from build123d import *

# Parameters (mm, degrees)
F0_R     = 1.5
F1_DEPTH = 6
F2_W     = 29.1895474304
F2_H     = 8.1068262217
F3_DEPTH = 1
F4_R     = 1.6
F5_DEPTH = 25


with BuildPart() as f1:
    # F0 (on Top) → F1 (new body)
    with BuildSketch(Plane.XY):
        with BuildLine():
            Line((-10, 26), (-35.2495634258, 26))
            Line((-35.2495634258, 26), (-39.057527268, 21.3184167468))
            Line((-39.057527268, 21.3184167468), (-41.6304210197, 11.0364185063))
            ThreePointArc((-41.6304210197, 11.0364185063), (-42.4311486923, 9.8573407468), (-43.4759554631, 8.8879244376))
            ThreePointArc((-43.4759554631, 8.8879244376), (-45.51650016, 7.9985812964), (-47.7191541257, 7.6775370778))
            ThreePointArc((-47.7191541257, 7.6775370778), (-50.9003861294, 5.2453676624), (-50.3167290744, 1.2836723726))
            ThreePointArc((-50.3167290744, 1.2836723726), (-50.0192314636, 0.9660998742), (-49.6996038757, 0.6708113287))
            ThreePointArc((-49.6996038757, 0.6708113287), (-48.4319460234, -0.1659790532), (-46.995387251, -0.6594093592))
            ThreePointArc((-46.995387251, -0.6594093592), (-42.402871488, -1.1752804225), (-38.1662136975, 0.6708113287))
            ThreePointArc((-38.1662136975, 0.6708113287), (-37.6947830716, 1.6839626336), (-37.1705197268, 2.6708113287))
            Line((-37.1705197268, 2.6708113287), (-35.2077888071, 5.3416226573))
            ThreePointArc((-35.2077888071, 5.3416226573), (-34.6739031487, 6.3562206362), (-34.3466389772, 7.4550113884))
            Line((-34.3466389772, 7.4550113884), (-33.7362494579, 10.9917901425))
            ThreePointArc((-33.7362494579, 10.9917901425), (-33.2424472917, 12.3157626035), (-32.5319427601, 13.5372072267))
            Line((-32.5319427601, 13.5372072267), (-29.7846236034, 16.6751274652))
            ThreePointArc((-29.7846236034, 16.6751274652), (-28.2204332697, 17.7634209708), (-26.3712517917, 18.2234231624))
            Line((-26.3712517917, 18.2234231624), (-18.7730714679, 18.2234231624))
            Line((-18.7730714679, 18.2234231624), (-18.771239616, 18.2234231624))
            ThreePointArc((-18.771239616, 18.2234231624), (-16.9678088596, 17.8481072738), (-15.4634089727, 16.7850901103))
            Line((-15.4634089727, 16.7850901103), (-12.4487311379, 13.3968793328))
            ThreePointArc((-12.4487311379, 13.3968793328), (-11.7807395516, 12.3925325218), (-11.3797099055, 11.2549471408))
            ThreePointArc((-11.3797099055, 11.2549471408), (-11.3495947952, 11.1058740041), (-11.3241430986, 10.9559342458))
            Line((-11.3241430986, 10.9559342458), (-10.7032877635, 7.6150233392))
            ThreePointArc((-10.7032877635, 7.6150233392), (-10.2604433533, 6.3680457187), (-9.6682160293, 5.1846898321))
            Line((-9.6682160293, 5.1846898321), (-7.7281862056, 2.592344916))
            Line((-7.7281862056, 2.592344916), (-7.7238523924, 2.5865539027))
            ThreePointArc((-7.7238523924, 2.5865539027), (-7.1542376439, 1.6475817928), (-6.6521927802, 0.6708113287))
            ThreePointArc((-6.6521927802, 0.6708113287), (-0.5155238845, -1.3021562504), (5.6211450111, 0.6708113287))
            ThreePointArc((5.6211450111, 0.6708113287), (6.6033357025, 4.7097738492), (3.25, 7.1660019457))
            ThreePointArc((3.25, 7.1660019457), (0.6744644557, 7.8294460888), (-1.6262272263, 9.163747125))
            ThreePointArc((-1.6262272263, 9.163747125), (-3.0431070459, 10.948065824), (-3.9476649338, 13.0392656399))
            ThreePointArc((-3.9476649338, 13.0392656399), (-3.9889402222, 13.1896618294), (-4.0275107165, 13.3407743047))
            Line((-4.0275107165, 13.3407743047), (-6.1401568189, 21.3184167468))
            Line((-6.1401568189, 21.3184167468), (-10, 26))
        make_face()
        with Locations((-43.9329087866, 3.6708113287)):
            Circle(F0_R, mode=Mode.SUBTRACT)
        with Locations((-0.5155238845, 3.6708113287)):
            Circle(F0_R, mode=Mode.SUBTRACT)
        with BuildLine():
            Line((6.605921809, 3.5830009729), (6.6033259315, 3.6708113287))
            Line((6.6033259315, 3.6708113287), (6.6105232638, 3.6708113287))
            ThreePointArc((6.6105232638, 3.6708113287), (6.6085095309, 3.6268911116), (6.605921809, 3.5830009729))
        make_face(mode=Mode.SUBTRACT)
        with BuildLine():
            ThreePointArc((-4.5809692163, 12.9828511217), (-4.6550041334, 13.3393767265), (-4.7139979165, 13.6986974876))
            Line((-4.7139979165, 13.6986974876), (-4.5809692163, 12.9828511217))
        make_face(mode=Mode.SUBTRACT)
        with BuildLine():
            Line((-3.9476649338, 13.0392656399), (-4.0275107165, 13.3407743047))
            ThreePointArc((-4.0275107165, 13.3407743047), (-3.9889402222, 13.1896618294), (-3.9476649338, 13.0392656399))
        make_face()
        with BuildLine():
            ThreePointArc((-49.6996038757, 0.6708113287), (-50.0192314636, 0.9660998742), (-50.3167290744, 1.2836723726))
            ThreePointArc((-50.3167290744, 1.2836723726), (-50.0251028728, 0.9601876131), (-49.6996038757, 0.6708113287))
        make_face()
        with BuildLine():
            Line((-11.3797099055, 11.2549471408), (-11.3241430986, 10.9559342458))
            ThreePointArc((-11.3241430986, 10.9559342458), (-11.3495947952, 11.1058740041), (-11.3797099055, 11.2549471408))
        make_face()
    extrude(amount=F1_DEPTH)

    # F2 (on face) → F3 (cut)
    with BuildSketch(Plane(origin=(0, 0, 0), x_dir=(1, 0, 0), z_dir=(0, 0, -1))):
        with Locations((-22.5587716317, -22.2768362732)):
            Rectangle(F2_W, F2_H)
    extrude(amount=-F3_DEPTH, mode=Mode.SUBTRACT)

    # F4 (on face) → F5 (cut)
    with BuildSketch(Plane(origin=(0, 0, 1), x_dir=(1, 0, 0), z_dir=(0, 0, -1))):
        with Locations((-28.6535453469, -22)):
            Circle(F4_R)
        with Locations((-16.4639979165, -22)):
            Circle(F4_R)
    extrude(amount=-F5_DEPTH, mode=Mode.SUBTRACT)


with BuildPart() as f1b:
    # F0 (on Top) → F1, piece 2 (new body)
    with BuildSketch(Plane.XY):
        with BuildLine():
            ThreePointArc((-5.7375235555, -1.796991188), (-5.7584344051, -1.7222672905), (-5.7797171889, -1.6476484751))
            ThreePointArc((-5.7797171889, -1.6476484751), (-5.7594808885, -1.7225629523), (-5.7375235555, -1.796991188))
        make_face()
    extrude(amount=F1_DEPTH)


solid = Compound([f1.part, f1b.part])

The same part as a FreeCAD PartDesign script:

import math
import FreeCAD as App
import Part
import Sketcher
Q = App.Units.Quantity

doc = App.newDocument("Part")
body = doc.addObject("PartDesign::Body", "Body")

sketch1 = body.newObject("Sketcher::SketchObject", "Sketch")
sketch1.AttachmentSupport = (doc.getObject("XY_Plane"), [""])
sketch1.MapMode = "FlatFace"
sketch1.addGeometry([
    Part.LineSegment(App.Vector(-10, 26, 0), App.Vector(-35.249563, 26, 0)),
    Part.LineSegment(App.Vector(-35.249563, 26, 0), App.Vector(-39.057527, 21.318417, 0)),
    Part.LineSegment(App.Vector(-39.057527, 21.318417, 0), App.Vector(-41.630421, 11.036419, 0)),
    Part.ArcOfCircle(Part.Circle(App.Vector(-47.220171, 13.971062, 0), App.Vector(0, 0, 1), 6.313275), math.radians(-53.624811), math.radians(-27.699672)),
    Part.ArcOfCircle(Part.Circle(App.Vector(-47.816364, 16.061107, 0), App.Vector(0, 0, 1), 8.384133), math.radians(-89.335669), math.radians(-58.82236)),
    Part.ArcOfCircle(Part.Circle(App.Vector(-47.244508, 3.760129, 0), App.Vector(0, 0, 1), 3.946058), math.radians(96.908464), math.radians(218.871602)),
    Part.ArcOfCircle(Part.Circle(App.Vector(-47.244508, 3.760129, 0), App.Vector(0, 0, 1), 3.946058), math.radians(-141.128398), math.radians(-128.474334)),
    Part.ArcOfCircle(Part.Circle(App.Vector(-45.770601, 5.244292, 0), App.Vector(0, 0, 1), 6.02941), math.radians(-130.665343), math.radians(-101.720367)),
    Part.ArcOfCircle(Part.Circle(App.Vector(-43.734949, 7.666219, 0), App.Vector(0, 0, 1), 8.941283), math.radians(-111.386038), math.radians(-51.478251)),
    Part.ArcOfCircle(Part.Circle(App.Vector(-18.75391, -7.745694, 0), App.Vector(0, 0, 1), 21.158334), math.radians(150.507333), math.radians(156.560109)),
    Part.LineSegment(App.Vector(-37.17052, 2.670811, 0), App.Vector(-35.207789, 5.341623, 0)),
    Part.ArcOfCircle(Part.Circle(App.Vector(-40.129658, 8.579296, 0), App.Vector(0, 0, 1), 5.891292), math.radians(-33.33747), math.radians(-11.001713)),
    Part.LineSegment(App.Vector(-34.346639, 7.455011, 0), App.Vector(-33.736249, 10.99179, 0)),
    Part.ArcOfCircle(Part.Circle(App.Vector(-25.713563, 8.753641, 0), App.Vector(0, 0, 1), 8.329034), math.radians(144.947676), math.radians(164.412091)),
    Part.LineSegment(App.Vector(-32.531943, 13.537207, 0), App.Vector(-29.784624, 16.675127, 0)),
    Part.ArcOfCircle(Part.Circle(App.Vector(-26.046296, 12.970319, 0), App.Vector(0, 0, 1), 5.263145), math.radians(93.539793), math.radians(135.258023)),
    Part.LineSegment(App.Vector(-26.371252, 18.223423, 0), App.Vector(-18.77124, 18.223423, 0)),
    Part.ArcOfCircle(Part.Circle(App.Vector(-18.772156, 13.698531, 0), App.Vector(0, 0, 1), 4.524893), math.radians(43.010218), math.radians(89.988402)),
    Part.LineSegment(App.Vector(-15.463409, 16.78509, 0), App.Vector(-12.448731, 13.396879, 0)),
    Part.ArcOfCircle(Part.Circle(App.Vector(-16.143854, 10.214937, 0), App.Vector(0, 0, 1), 4.87634), math.radians(12.314451), math.radians(40.732382)),
    Part.LineSegment(App.Vector(-11.37971, 11.254947, 0), App.Vector(-11.324143, 10.955934, 0)),
    Part.LineSegment(App.Vector(-11.324143, 10.955934, 0), App.Vector(-10.703288, 7.615023, 0)),
    Part.ArcOfCircle(Part.Circle(App.Vector(-0.338231, 10.593886, 0), App.Vector(0, 0, 1), 10.78462), math.radians(-163.965627), math.radians(-149.896355)),
    Part.LineSegment(App.Vector(-9.668216, 5.18469, 0), App.Vector(-7.728186, 2.592345, 0)),
    Part.LineSegment(App.Vector(-7.728186, 2.592345, 0), App.Vector(-7.723852, 2.586554, 0)),
    Part.ArcOfCircle(Part.Circle(App.Vector(-20.749922, -5.957796, 0), App.Vector(0, 0, 1), 15.578331), math.radians(25.182427), math.radians(33.262563)),
    Part.ArcOfCircle(Part.Circle(App.Vector(-0.515524, 9.227998, 0), App.Vector(0, 0, 1), 10.530154), math.radians(-125.645679), math.radians(-54.354321)),
    Part.ArcOfCircle(Part.Circle(App.Vector(3.086791, 3.426018, 0), App.Vector(0, 0, 1), 3.743543), math.radians(-47.390858), math.radians(87.501256)),
    Part.ArcOfCircle(Part.Circle(App.Vector(4.373405, 16.858064, 0), App.Vector(0, 0, 1), 9.756951), math.radians(-127.945275), math.radians(-96.611642)),
    Part.ArcOfCircle(Part.Circle(App.Vector(4.414175, 15.414982, 0), App.Vector(0, 0, 1), 8.692779), math.radians(-164.139406), math.radians(-134.017331)),
    Part.LineSegment(App.Vector(-3.947665, 13.039266, 0), App.Vector(-4.027511, 13.340774, 0)),
    Part.LineSegment(App.Vector(-4.027511, 13.340774, 0), App.Vector(-6.140157, 21.318417, 0)),
    Part.LineSegment(App.Vector(-6.140157, 21.318417, 0), App.Vector(-10, 26, 0)),
    Part.Circle(App.Vector(-43.932909, 3.670811, 0), App.Vector(0, 0, 1), 1.5),
    Part.Circle(App.Vector(-0.515524, 3.670811, 0), App.Vector(0, 0, 1), 1.5),
    Part.ArcOfCircle(Part.Circle(App.Vector(3.250001, 3.802884, 0), App.Vector(0, 0, 1), 3.363117), math.radians(-3.748719), math.radians(-2.250642)),
    Part.LineSegment(App.Vector(6.605922, 3.583001, 0), App.Vector(6.603326, 3.670811, 0)),
    Part.LineSegment(App.Vector(6.603326, 3.670811, 0), App.Vector(6.610523, 3.670811, 0)),
    Part.LineSegment(App.Vector(-4.713998, 13.698697, 0), App.Vector(-4.580969, 12.982851, 0)),
    Part.ArcOfCircle(Part.Circle(App.Vector(3.866, 14.92287, 0), App.Vector(0, 0, 1), 8.666889), math.radians(-171.879984), math.radians(-167.06517)),
], False)
sketch1.addConstraint([
    Sketcher.Constraint("Coincident", 0, 2, 1, 1),
    Sketcher.Constraint("Coincident", 1, 2, 2, 1),
    Sketcher.Constraint("Coincident", 2, 2, 3, 2),
    Sketcher.Constraint("Coincident", 3, 1, 4, 2),
    Sketcher.Constraint("Coincident", 4, 1, 5, 1),
    Sketcher.Constraint("Coincident", 5, 2, 6, 1),
    Sketcher.Constraint("Coincident", 6, 2, 7, 1),
    Sketcher.Constraint("Coincident", 7, 2, 8, 1),
    Sketcher.Constraint("Coincident", 8, 2, 9, 2),
    Sketcher.Constraint("Coincident", 9, 1, 10, 1),
    Sketcher.Constraint("Coincident", 10, 2, 11, 1),
    Sketcher.Constraint("Coincident", 11, 2, 12, 1),
    Sketcher.Constraint("Coincident", 12, 2, 13, 2),
    Sketcher.Constraint("Coincident", 13, 1, 14, 1),
    Sketcher.Constraint("Coincident", 14, 2, 15, 2),
    Sketcher.Constraint("Coincident", 15, 1, 16, 1),
    Sketcher.Constraint("Coincident", 16, 2, 17, 2),
    Sketcher.Constraint("Coincident", 17, 1, 18, 1),
    Sketcher.Constraint("Coincident", 18, 2, 19, 2),
    Sketcher.Constraint("Coincident", 19, 1, 20, 1),
    Sketcher.Constraint("Coincident", 20, 2, 21, 1),
    Sketcher.Constraint("Coincident", 21, 2, 22, 1),
    Sketcher.Constraint("Coincident", 22, 2, 23, 1),
    Sketcher.Constraint("Coincident", 23, 2, 24, 1),
    Sketcher.Constraint("Coincident", 24, 2, 25, 2),
    Sketcher.Constraint("Coincident", 25, 1, 26, 1),
    Sketcher.Constraint("Coincident", 26, 2, 27, 1),
    Sketcher.Constraint("Coincident", 27, 2, 28, 2),
    Sketcher.Constraint("Coincident", 28, 1, 29, 2),
    Sketcher.Constraint("Coincident", 29, 1, 30, 1),
    Sketcher.Constraint("Coincident", 30, 2, 31, 1),
    Sketcher.Constraint("Coincident", 31, 2, 32, 1),
    Sketcher.Constraint("Coincident", 32, 2, 0, 1),
    Sketcher.Constraint("Coincident", 35, 1, 36, 1),
    Sketcher.Constraint("Coincident", 36, 2, 37, 1),
    Sketcher.Constraint("Coincident", 37, 2, 35, 2),
    Sketcher.Constraint("Coincident", 38, 1, 39, 1),
    Sketcher.Constraint("Coincident", 39, 2, 38, 2),
    Sketcher.Constraint("Horizontal", 0),
    Sketcher.Constraint("Horizontal", 16),
    Sketcher.Constraint("Horizontal", 37),
    Sketcher.Constraint("Coincident", 6, 3, 5, 3),
    Sketcher.Constraint("Diameter", 33, Q("3 mm")),
    Sketcher.Constraint("Diameter", 34, Q("3 mm")),
    Sketcher.Constraint("DistanceY", -1, 1, 0, 2, Q("26 mm")),
    Sketcher.Constraint("DistanceX", 32, 2, -1, 1, Q("10 mm")),
    Sketcher.Constraint("DistanceY", 6, 2, 33, 3, Q("3 mm")),
    Sketcher.Constraint("DistanceY", 8, 2, 33, 3, Q("3 mm")),
    Sketcher.Constraint("DistanceY", 8, 2, 9, 1, Q("2 mm")),
    Sketcher.Constraint("DistanceY", 25, 1, 34, 3, Q("3 mm")),
    Sketcher.Constraint("DistanceY", 26, 2, 34, 3, Q("3 mm")),
    Sketcher.Constraint("DistanceY", 26, 2, 36, 2, Q("3 mm")),
    Sketcher.Constraint("DistanceX", -1, 1, 35, 3, Q("3.250001 mm")),
    Sketcher.Constraint("DistanceX", -1, 1, 27, 2, Q("3.25 mm")),
    Sketcher.Constraint("Radius", 5, Q("3.946058 mm")),
    Sketcher.Constraint("Radius", 7, Q("6.02941 mm")),
    Sketcher.Constraint("Radius", 11, Q("5.891292 mm")),
    Sketcher.Constraint("Radius", 19, Q("4.87634 mm")),
    Sketcher.Constraint("Radius", 22, Q("10.78462 mm")),
    Sketcher.Constraint("Radius", 25, Q("15.578331 mm")),
    Sketcher.Constraint("Radius", 28, Q("9.756951 mm")),
    Sketcher.Constraint("Radius", 29, Q("8.692779 mm")),
    Sketcher.Constraint("Radius", 39, Q("8.666889 mm")),
    Sketcher.Constraint("DistanceY", -1, 1, 26, 3, Q("9.227998 mm")),
    Sketcher.Constraint("DistanceX", -1, 1, 39, 3, Q("3.866 mm")),
    Sketcher.Constraint("DistanceY", -1, 1, 27, 2, Q("7.166002 mm")),
    Sketcher.Constraint("DistanceY", -1, 1, 35, 1, Q("3.583001 mm")),
    Sketcher.Constraint("Radius", 3, Q("6.313275 mm")),
    Sketcher.Constraint("Radius", 4, Q("8.384133 mm")),
    Sketcher.Constraint("Radius", 8, Q("8.941283 mm")),
    Sketcher.Constraint("Radius", 9, Q("21.158334 mm")),
    Sketcher.Constraint("Radius", 13, Q("8.329034 mm")),
    Sketcher.Constraint("Radius", 15, Q("5.263145 mm")),
    Sketcher.Constraint("Radius", 17, Q("4.524893 mm")),
    Sketcher.Constraint("Radius", 26, Q("10.530154 mm")),
    Sketcher.Constraint("Radius", 27, Q("3.743543 mm")),
    Sketcher.Constraint("Radius", 35, Q("3.363117 mm")),
    Sketcher.Constraint("DistanceY", 35, 3, 22, 3, Q("6.791002 mm")),
    Sketcher.Constraint("DistanceX", 0, 2, 13, 3, Q("9.536 mm")),
    Sketcher.Constraint("Distance", 30, Q("0.311902 mm")),
    Sketcher.Constraint("DistanceX", 7, 3, -1, 1, Q("45.770601 mm")),
    Sketcher.Constraint("DistanceX", 6, 3, 9, 3, Q("28.490598 mm")),
    Sketcher.Constraint("DistanceY", 8, 3, 15, 3, Q("5.3041 mm")),
    Sketcher.Constraint("DistanceX", 17, 3, 19, 3, Q("2.628301 mm")),
    Sketcher.Constraint("DistanceY", 9, 3, 25, 3, Q("1.787898 mm")),
    Sketcher.Constraint("DistanceX", 9, 3, 27, 3, Q("21.840701 mm")),
    Sketcher.Constraint("DistanceX", 26, 3, 29, 3, Q("4.929699 mm")),
    Sketcher.Constraint("DistanceX", 6, 3, 33, 3, Q("3.3116 mm")),
    Sketcher.Constraint("DistanceX", 34, 3, 29, 3, Q("4.929699 mm")),
    Sketcher.Constraint("DistanceX", 4, 3, 0, 2, Q("12.566801 mm")),
    Sketcher.Constraint("DistanceY", 8, 3, 2, 2, Q("3.370199 mm")),
    Sketcher.Constraint("DistanceX", 4, 1, 3, 1, Q("4.243199 mm")),
    Sketcher.Constraint("DistanceY", 9, 1, 11, 2, Q("4.7842 mm")),
    Sketcher.Constraint("DistanceX", 18, 2, 22, 3, Q("12.110501 mm")),
    Sketcher.Constraint("DistanceX", 17, 1, 19, 1, Q("4.083699 mm")),
    Sketcher.Constraint("DistanceX", 21, 2, 23, 2, Q("2.975102 mm")),
    Sketcher.Constraint("DistanceX", 19, 1, 30, 2, Q("7.352199 mm")),
    Sketcher.Constraint("DistanceX", 35, 1, 37, 2, Q("0.004601 mm")),
    Sketcher.Constraint("DistanceY", 26, 3, 38, 1, Q("4.470699 mm")),
    Sketcher.Constraint("Distance", 14, Q("4.170648 mm")),
    Sketcher.Constraint("Distance", 21, Q("3.398109 mm")),
    Sketcher.Constraint("Distance", 31, Q("8.252639 mm")),
    Sketcher.Constraint("Distance", 36, Q("0.087849 mm")),
    Sketcher.Constraint("DistanceX", 0, 2, 0, 1, Q("25.249563 mm")),
    Sketcher.Constraint("DistanceX", 16, 1, 16, 2, Q("7.600012 mm")),
    Sketcher.Constraint("DistanceX", 37, 1, 37, 2, Q("0.007197 mm")),
    Sketcher.Constraint("DistanceX", 3, 3, -1, 1, Q("47.220171 mm")),
    Sketcher.Constraint("DistanceX", 5, 3, -1, 1, Q("47.244508 mm")),
    Sketcher.Constraint("DistanceY", -1, 1, 5, 3, Q("3.760129 mm")),
    Sketcher.Constraint("DistanceY", -1, 1, 7, 3, Q("5.244292 mm")),
    Sketcher.Constraint("DistanceX", 8, 3, -1, 1, Q("43.734949 mm")),
    Sketcher.Constraint("DistanceY", -1, 1, 8, 3, Q("7.666219 mm")),
    Sketcher.Constraint("DistanceY", -1, 1, 13, 3, Q("8.753641 mm")),
    Sketcher.Constraint("DistanceY", -1, 1, 17, 3, Q("13.698531 mm")),
    Sketcher.Constraint("DistanceX", 22, 3, -1, 1, Q("0.338231 mm")),
    Sketcher.Constraint("DistanceY", -1, 1, 39, 3, Q("14.92287 mm")),
    Sketcher.Constraint("DistanceX", 2, 2, -1, 1, Q("41.630421 mm")),
    Sketcher.Constraint("DistanceX", 5, 2, -1, 1, Q("50.316729 mm")),
    Sketcher.Constraint("DistanceX", 10, 2, -1, 1, Q("35.207789 mm")),
    Sketcher.Constraint("DistanceX", 11, 2, -1, 1, Q("34.346639 mm")),
    Sketcher.Constraint("DistanceX", 12, 2, -1, 1, Q("33.736249 mm")),
    Sketcher.Constraint("DistanceX", 15, 1, -1, 1, Q("26.371252 mm")),
    Sketcher.Constraint("DistanceX", 17, 1, -1, 1, Q("15.463409 mm")),
    Sketcher.Constraint("DistanceY", -1, 1, 17, 1, Q("16.78509 mm")),
    Sketcher.Constraint("DistanceY", -1, 1, 18, 2, Q("13.396879 mm")),
    Sketcher.Constraint("DistanceY", -1, 1, 22, 2, Q("5.18469 mm")),
    Sketcher.Constraint("DistanceX", 39, 2, -1, 1, Q("4.580969 mm")),
    Sketcher.Constraint("DistanceX", 8, 3, 11, 3, Q("3.605292 mm")),
    Sketcher.Constraint("DistanceX", 26, 3, 28, 3, Q("4.888929 mm")),
    Sketcher.Constraint("DistanceY", 29, 3, 28, 3, Q("1.443081 mm")),
    Sketcher.Constraint("DistanceY", 4, 3, 1, 2, Q("5.25731 mm")),
    Sketcher.Constraint("DistanceX", 11, 3, 1, 2, Q("1.07213 mm")),
    Sketcher.Constraint("DistanceY", 15, 3, 13, 1, Q("0.566888 mm")),
    Sketcher.Constraint("DistanceX", 18, 2, 20, 2, Q("1.124588 mm")),
    Sketcher.Constraint("DistanceY", 21, 2, 20, 2, Q("3.340911 mm")),
    Sketcher.Constraint("DistanceY", 23, 2, 21, 2, Q("5.022678 mm")),
    Sketcher.Constraint("DistanceY", 24, 2, 23, 2, Q("0.005791 mm")),
    Sketcher.Constraint("DistanceY", 22, 3, 29, 1, Q("2.445379 mm")),
    Sketcher.Constraint("DistanceX", 31, 2, 29, 1, Q("2.192492 mm")),
])
pad1 = body.newObject("PartDesign::Pad", "Pad")
pad1.Profile = sketch1
pad1.Length = 6

sketch2 = body.newObject("Sketcher::SketchObject", "Sketch001")
sketch2.AttachmentSupport = (doc.getObject("XY_Plane"), [""])
sketch2.MapMode = "FlatFace"
sketch2.addGeometry([
    Part.LineSegment(App.Vector(-37, 18, 0), App.Vector(-37, 26, 0)),
    Part.LineSegment(App.Vector(-37, 26, 0), App.Vector(-8, 26, 0)),
    Part.LineSegment(App.Vector(-8, 26, 0), App.Vector(-8, 18, 0)),
    Part.LineSegment(App.Vector(-8, 18, 0), App.Vector(-37, 18, 0)),
], False)
sketch2.addConstraint([
    Sketcher.Constraint("Coincident", 0, 2, 1, 1),
    Sketcher.Constraint("Coincident", 1, 2, 2, 1),
    Sketcher.Constraint("Coincident", 2, 2, 3, 1),
    Sketcher.Constraint("Coincident", 3, 2, 0, 1),
    Sketcher.Constraint("Vertical", 0),
    Sketcher.Constraint("Horizontal", 1),
    Sketcher.Constraint("Vertical", 2),
    Sketcher.Constraint("Horizontal", 3),
    Sketcher.Constraint("DistanceX", 1, 1, 1, 2, Q("29.189547 mm")),
    Sketcher.Constraint("DistanceY", 0, 1, 0, 2, Q("8.106826 mm")),
    Sketcher.Constraint("DistanceY", -1, 1, 0, 2, Q("26.330249 mm")),
    Sketcher.Constraint("DistanceX", 0, 2, -1, 1, Q("37.153545 mm")),
])
pocket1 = body.newObject("PartDesign::Pocket", "Pocket")
pocket1.Profile = sketch2
pocket1.Length = 1
pocket1.Reversed = True

sketch3 = body.newObject("Sketcher::SketchObject", "Sketch002")
sketch3.AttachmentSupport = (doc.getObject("XY_Plane"), [""])
sketch3.MapMode = "FlatFace"
sketch3.AttachmentOffset = App.Placement(App.Vector(0, 0, 1), App.Rotation())
sketch3.addGeometry([
    Part.Circle(App.Vector(-28.7, 22, 0), App.Vector(0, 0, 1), 1.6),
    Part.Circle(App.Vector(-16.5, 22, 0), App.Vector(0, 0, 1), 1.6),
], False)
sketch3.addConstraint([
    Sketcher.Constraint("Equal", 0, 1),
    Sketcher.Constraint("Horizontal", 0, 3, 1, 3),
    Sketcher.Constraint("Diameter", 0, Q("3.2 mm")),
    Sketcher.Constraint("DistanceY", -1, 1, 0, 3, Q("22 mm")),
    Sketcher.Constraint("DistanceX", 0, 3, -1, 1, Q("28.653545 mm")),
    Sketcher.Constraint("DistanceX", 1, 3, -1, 1, Q("16.463998 mm")),
])
pocket2 = body.newObject("PartDesign::Pocket", "Pocket001")
pocket2.Profile = sketch3
pocket2.Length = 25
pocket2.Reversed = True
body2 = doc.addObject("PartDesign::Body", "Body001")

sketch4 = body2.newObject("Sketcher::SketchObject", "Sketch003")
sketch4.AttachmentSupport = (doc.getObject("XY_Plane001"), [""])
sketch4.MapMode = "FlatFace"
sketch4.addGeometry([
    Part.ArcOfCircle(Part.Circle(App.Vector(-20.75, -5.96, 0), App.Vector(0, 0, 1), 15.58), math.radians(15.49), math.radians(16.06)),
    Part.ArcOfCircle(Part.Circle(App.Vector(-2.52, -0.81, 0), App.Vector(0, 0, 1), 3.37), math.radians(-165.54), math.radians(-162.9)),
], False)
sketch4.addConstraint([
    Sketcher.Constraint("Coincident", 0, 1, 1, 2),
    Sketcher.Constraint("Coincident", 1, 1, 0, 2),
    Sketcher.Constraint("Radius", 0, Q("15.578329 mm")),
    Sketcher.Constraint("Radius", 1, Q("3.367076 mm")),
    Sketcher.Constraint("DistanceX", 0, 3, -1, 1, Q("20.74992 mm")),
    Sketcher.Constraint("DistanceY", 0, 1, -1, 1, Q("1.796991 mm")),
    Sketcher.Constraint("DistanceY", 1, 1, -1, 1, Q("1.647648 mm")),
    Sketcher.Constraint("DistanceX", 0, 1, 1, 3, Q("3.218279 mm")),
])
pad2 = body2.newObject("PartDesign::Pad", "Pad001")
pad2.Profile = sketch4
pad2.Length = 6

doc.recompute()
